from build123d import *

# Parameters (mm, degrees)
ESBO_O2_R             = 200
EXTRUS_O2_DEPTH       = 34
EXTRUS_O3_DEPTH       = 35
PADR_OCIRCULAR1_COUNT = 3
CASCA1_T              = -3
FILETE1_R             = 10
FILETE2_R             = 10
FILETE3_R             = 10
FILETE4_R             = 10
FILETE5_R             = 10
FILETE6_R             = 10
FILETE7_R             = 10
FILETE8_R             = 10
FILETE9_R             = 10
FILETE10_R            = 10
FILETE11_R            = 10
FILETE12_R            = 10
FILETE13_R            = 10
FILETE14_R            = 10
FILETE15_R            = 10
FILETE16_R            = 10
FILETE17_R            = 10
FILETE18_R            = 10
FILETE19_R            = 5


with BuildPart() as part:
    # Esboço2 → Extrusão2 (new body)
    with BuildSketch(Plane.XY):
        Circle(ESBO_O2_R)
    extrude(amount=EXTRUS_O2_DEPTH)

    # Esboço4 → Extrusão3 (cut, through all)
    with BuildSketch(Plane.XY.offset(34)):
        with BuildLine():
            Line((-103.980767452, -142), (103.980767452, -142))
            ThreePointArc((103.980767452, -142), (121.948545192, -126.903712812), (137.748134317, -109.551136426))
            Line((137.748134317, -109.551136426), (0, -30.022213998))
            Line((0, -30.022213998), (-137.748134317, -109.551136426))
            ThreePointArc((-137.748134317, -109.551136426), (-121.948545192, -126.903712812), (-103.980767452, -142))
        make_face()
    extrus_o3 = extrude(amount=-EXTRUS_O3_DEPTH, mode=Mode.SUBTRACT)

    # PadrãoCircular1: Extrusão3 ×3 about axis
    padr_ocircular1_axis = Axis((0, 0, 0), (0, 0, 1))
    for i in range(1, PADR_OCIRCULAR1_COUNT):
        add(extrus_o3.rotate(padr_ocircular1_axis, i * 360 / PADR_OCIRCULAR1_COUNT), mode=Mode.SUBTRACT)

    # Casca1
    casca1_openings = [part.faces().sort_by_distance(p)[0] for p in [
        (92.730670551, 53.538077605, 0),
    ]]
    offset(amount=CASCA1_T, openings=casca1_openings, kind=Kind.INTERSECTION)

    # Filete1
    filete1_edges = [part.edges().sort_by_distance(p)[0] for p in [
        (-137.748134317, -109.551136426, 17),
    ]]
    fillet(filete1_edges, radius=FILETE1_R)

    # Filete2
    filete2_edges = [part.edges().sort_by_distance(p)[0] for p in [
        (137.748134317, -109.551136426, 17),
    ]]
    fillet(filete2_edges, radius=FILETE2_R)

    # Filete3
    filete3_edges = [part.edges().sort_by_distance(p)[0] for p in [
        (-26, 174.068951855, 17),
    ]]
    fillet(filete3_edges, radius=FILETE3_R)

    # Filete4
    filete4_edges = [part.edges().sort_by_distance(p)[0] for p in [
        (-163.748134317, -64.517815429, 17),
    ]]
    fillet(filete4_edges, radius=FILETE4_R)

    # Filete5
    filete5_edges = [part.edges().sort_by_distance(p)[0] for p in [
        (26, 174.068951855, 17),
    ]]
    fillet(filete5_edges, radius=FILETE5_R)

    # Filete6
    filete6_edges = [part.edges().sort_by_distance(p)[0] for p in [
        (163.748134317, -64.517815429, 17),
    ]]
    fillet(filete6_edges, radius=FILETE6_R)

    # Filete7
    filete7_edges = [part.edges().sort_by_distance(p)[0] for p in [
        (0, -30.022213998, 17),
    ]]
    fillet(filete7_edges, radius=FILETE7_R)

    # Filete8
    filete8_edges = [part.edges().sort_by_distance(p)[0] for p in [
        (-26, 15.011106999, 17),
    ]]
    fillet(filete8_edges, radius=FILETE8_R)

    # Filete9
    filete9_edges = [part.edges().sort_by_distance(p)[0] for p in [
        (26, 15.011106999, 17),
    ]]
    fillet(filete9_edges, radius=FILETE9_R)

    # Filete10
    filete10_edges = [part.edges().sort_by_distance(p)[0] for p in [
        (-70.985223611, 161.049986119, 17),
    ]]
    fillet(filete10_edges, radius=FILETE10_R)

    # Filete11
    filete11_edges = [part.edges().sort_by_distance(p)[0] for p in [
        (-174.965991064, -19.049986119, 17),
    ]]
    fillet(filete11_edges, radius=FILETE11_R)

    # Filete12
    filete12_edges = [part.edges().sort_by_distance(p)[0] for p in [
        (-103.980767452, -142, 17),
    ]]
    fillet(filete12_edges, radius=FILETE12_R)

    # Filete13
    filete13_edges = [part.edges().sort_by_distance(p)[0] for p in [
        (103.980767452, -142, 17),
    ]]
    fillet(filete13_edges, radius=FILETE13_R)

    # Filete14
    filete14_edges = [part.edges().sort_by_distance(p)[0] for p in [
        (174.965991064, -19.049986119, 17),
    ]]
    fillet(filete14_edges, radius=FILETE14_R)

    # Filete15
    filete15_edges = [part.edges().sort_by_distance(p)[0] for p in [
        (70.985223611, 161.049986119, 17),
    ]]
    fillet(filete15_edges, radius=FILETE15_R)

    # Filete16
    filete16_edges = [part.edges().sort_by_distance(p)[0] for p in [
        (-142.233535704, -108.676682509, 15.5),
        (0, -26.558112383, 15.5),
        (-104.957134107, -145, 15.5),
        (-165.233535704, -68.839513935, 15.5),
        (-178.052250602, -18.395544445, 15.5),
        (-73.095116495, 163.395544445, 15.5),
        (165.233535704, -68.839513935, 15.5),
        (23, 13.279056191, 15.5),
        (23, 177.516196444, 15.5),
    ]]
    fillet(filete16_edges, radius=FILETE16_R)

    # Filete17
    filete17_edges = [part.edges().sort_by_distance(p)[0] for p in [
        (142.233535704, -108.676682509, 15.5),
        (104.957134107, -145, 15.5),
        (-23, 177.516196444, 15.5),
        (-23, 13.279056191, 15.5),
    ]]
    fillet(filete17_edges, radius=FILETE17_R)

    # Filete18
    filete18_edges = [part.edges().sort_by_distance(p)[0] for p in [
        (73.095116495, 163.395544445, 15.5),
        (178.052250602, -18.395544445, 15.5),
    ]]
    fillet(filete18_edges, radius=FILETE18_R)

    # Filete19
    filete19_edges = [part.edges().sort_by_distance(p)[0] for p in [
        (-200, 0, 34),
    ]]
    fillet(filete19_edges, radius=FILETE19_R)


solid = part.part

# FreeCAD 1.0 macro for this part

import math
import FreeCAD as App
import Part
import Sketcher
Q = App.Units.Quantity


def edges_at(feature, points):
    """Names of the edges that pass closest to the given points."""
    edges = feature.Shape.Edges
    near = lambda p: min(range(len(edges)), key=lambda i: edges[i].distToShape(Part.Vertex(*p))[0])
    return sorted({f"Edge{near(p) + 1}" for p in points})


def faces_at(feature, points):
    """Names of the faces that lie closest to the given points."""
    faces = feature.Shape.Faces
    near = lambda p: min(range(len(faces)), key=lambda i: faces[i].distToShape(Part.Vertex(*p))[0])
    return sorted({f"Face{near(p) + 1}" for p in points})

doc = App.newDocument("Part")
body = doc.addObject("PartDesign::Body", "Body")

# Sketch on XY plane
sketch1 = body.newObject("Sketcher::SketchObject", "Sketch")
sketch1.AttachmentSupport = (doc.getObject("XY_Plane"), [""])
sketch1.MapMode = "FlatFace"
sketch1.addGeometry(Part.Circle(App.Vector(0, 0, 0), App.Vector(0, 0, 1), 200), False)
sketch1.addConstraint([
    Sketcher.Constraint("Coincident", 0, 3, -1, 1),
    Sketcher.Constraint("Diameter", 0, Q("400 mm")),
])
pad1 = body.newObject("PartDesign::Pad", "Pad")
pad1.Profile = sketch1
pad1.Length = 34

# Sketch on XY plane
sketch2 = body.newObject("Sketcher::SketchObject", "Sketch001")
sketch2.AttachmentSupport = (doc.getObject("XY_Plane"), [""])
sketch2.MapMode = "FlatFace"
sketch2.AttachmentOffset = App.Placement(App.Vector(0, 0, 34), App.Rotation())
sketch2.addGeometry([
    Part.LineSegment(App.Vector(-103.980767, -142, 0), App.Vector(103.980767, -142, 0)),  # 0
    Part.ArcOfCircle(Part.Circle(App.Vector(0, 0, 0), App.Vector(0, 0, 1), 176), math.radians(-53.786214), math.radians(-38.495242)),  # 1
    Part.LineSegment(App.Vector(137.748134, -109.551136, 0), App.Vector(0, -30.022214, 0)),  # 2
    Part.LineSegment(App.Vector(0, -30.022214, 0), App.Vector(-137.748134, -109.551136, 0)),  # 3
    Part.ArcOfCircle(Part.Circle(App.Vector(0, 0, 0), App.Vector(0, 0, 1), 176), math.radians(-141.504758), math.radians(-126.213786)),  # 4
], False)
sketch2.addConstraint([
    Sketcher.Constraint("Coincident", 0, 2, 1, 1),
    Sketcher.Constraint("Coincident", 1, 2, 2, 1),
    Sketcher.Constraint("Coincident", 2, 2, 3, 1),
    Sketcher.Constraint("Coincident", 3, 2, 4, 1),
    Sketcher.Constraint("Coincident", 4, 2, 0, 1),
    Sketcher.Constraint("Horizontal", 0),
    Sketcher.Constraint("Coincident", 1, 3, -1, 1),
    Sketcher.Constraint("Coincident", 4, 3, -1, 1),
    Sketcher.Constraint("Equal", 1, 4),
    Sketcher.Constraint("PointOnObject", 2, 2, -2),
    Sketcher.Constraint("Horizontal", 1, 2, 3, 2),
    Sketcher.Constraint("Radius", 1, Q("176 mm")),
    Sketcher.Constraint("Angle", 2, Q("150 deg")),
    Sketcher.Constraint("DistanceY", 0, 2, -1, 1, Q("142 mm")),
    Sketcher.Constraint("DistanceX", 3, 2, 0, 2, Q("241.728902 mm")),
])
pocket1 = body.newObject("PartDesign::Pocket", "Pocket")
pocket1.Profile = sketch2
pocket1.Type = "ThroughAll"
doc.recompute()

polarpattern = body.newObject("PartDesign::PolarPattern", "PolarPattern")
polarpattern.Originals = [pocket1]
polarpattern.Axis = (doc.getObject("Z_Axis"), [""])
polarpattern.Angle = 360
polarpattern.Occurrences = 3
body.Tip = polarpattern
doc.recompute()

thickness = body.newObject("PartDesign::Thickness", "Thickness")
thickness.Base = (polarpattern, faces_at(polarpattern, [(0, 0, 0)]))
thickness.Value = 3
thickness.Reversed = True
thickness.Join = "Intersection"
doc.recompute()

fillet = body.newObject("PartDesign::Fillet", "Fillet")
fillet.Base = (thickness, edges_at(thickness, [(-137.748, -109.551, 17)]))
fillet.Radius = 10
doc.recompute()

fillet2 = body.newObject("PartDesign::Fillet", "Fillet001")
fillet2.Base = (fillet, edges_at(fillet, [(137.748, -109.551, 17)]))
fillet2.Radius = 10
doc.recompute()

fillet3 = body.newObject("PartDesign::Fillet", "Fillet002")
fillet3.Base = (fillet2, edges_at(fillet2, [(-26, 174.069, 17)]))
fillet3.Radius = 10
doc.recompute()

fillet4 = body.newObject("PartDesign::Fillet", "Fillet003")
fillet4.Base = (fillet3, edges_at(fillet3, [(-163.748, -64.518, 17)]))
fillet4.Radius = 10
doc.recompute()

fillet5 = body.newObject("PartDesign::Fillet", "Fillet004")
fillet5.Base = (fillet4, edges_at(fillet4, [(26, 174.069, 17)]))
fillet5.Radius = 10
doc.recompute()

fillet6 = body.newObject("PartDesign::Fillet", "Fillet005")
fillet6.Base = (fillet5, edges_at(fillet5, [(163.748, -64.518, 17)]))
fillet6.Radius = 10
doc.recompute()

fillet7 = body.newObject("PartDesign::Fillet", "Fillet006")
fillet7.Base = (fillet6, edges_at(fillet6, [(0, -30.022, 17)]))
fillet7.Radius = 10
doc.recompute()

fillet8 = body.newObject("PartDesign::Fillet", "Fillet007")
fillet8.Base = (fillet7, edges_at(fillet7, [(-26, 15.011, 17)]))
fillet8.Radius = 10
doc.recompute()

fillet9 = body.newObject("PartDesign::Fillet", "Fillet008")
fillet9.Base = (fillet8, edges_at(fillet8, [(26, 15.011, 17)]))
fillet9.Radius = 10
doc.recompute()

fillet10 = body.newObject("PartDesign::Fillet", "Fillet009")
fillet10.Base = (fillet9, edges_at(fillet9, [(-70.985, 161.05, 17)]))
fillet10.Radius = 10
doc.recompute()

fillet11 = body.newObject("PartDesign::Fillet", "Fillet010")
fillet11.Base = (fillet10, edges_at(fillet10, [(-174.966, -19.05, 17)]))
fillet11.Radius = 10
doc.recompute()

fillet12 = body.newObject("PartDesign::Fillet", "Fillet011")
fillet12.Base = (fillet11, edges_at(fillet11, [(-103.981, -142, 17)]))
fillet12.Radius = 10
doc.recompute()

fillet13 = body.newObject("PartDesign::Fillet", "Fillet012")
fillet13.Base = (fillet12, edges_at(fillet12, [(103.981, -142, 17)]))
fillet13.Radius = 10
doc.recompute()

fillet14 = body.newObject("PartDesign::Fillet", "Fillet013")
fillet14.Base = (fillet13, edges_at(fillet13, [(174.966, -19.05, 17)]))
fillet14.Radius = 10
doc.recompute()

fillet15 = body.newObject("PartDesign::Fillet", "Fillet014")
fillet15.Base = (fillet14, edges_at(fillet14, [(70.985, 161.05, 17)]))
fillet15.Radius = 10
doc.recompute()

fillet16 = body.newObject("PartDesign::Fillet", "Fillet015")
fillet16.Base = (fillet15, edges_at(fillet15, [
    (-142.234, -108.677, 15.5),
    (0, -26.558, 15.5),
    (-104.957, -145, 15.5),
    (-165.234, -68.84, 15.5),
    (-178.052, -18.396, 15.5),
    (-73.095, 163.396, 15.5),
    (165.234, -68.84, 15.5),
    (23, 13.279, 15.5),
    (23, 177.516, 15.5),
]))
fillet16.Radius = 10
doc.recompute()

fillet17 = body.newObject("PartDesign::Fillet", "Fillet016")
fillet17.Base = (fillet16, edges_at(fillet16, [
    (142.234, -108.677, 15.5),
    (104.957, -145, 15.5),
    (-23, 177.516, 15.5),
    (-23, 13.279, 15.5),
]))
fillet17.Radius = 10
doc.recompute()

fillet18 = body.newObject("PartDesign::Fillet", "Fillet017")
fillet18.Base = (fillet17, edges_at(fillet17, [(73.095, 163.396, 15.5), (178.052, -18.396, 15.5)]))
fillet18.Radius = 10
doc.recompute()

fillet19 = body.newObject("PartDesign::Fillet", "Fillet018")
fillet19.Base = (fillet18, edges_at(fillet18, [(-200, 0, 34)]))
fillet19.Radius = 5

doc.recompute()
